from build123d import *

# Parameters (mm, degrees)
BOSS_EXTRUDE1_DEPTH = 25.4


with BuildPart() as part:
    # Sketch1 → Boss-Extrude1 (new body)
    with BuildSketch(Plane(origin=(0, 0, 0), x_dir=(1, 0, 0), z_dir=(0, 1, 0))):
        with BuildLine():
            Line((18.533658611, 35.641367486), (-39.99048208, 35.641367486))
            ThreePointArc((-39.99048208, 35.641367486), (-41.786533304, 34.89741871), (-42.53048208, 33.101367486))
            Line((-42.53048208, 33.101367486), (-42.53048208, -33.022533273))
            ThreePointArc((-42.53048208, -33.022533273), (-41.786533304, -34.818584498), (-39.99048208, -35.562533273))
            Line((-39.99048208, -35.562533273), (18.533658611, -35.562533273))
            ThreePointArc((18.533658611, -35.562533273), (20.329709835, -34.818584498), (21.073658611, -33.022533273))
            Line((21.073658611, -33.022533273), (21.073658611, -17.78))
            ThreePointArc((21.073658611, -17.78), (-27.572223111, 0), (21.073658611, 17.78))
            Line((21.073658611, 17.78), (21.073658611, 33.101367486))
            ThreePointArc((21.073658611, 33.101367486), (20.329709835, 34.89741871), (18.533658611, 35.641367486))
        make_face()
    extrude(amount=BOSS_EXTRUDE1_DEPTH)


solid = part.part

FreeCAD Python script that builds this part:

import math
import FreeCAD as App
import Part
import Sketcher
Q = App.Units.Quantity

doc = App.newDocument("Part")
body = doc.addObject("PartDesign::Body", "Body")

sketch1 = body.newObject("Sketcher::SketchObject", "Sketch")
sketch1.AttachmentSupport = (doc.getObject("XZ_Plane"), [""])
sketch1.MapMode = "FlatFace"
sketch1.addGeometry(Part.LineSegment(App.Vector(18.5, -35.6, 0), App.Vector(-40, -35.6, 0)), False)
sketch1.addGeometry(Part.ArcOfCircle(Part.Circle(App.Vector(-40, -33.1, 0), App.Vector(0, 0, 1), 2.5), math.radians(-180), math.radians(-90)), False)
sketch1.addGeometry(Part.LineSegment(App.Vector(-42.5, -33.1, 0), App.Vector(-42.5, 33, 0)), False)
sketch1.addGeometry(Part.ArcOfCircle(Part.Circle(App.Vector(-40, 33, 0), App.Vector(0, 0, 1), 2.5), math.radians(90), math.radians(180)), False)
sketch1.addGeometry(Part.LineSegment(App.Vector(-40, 35.6, 0), App.Vector(18.5, 35.6, 0)), False)
sketch1.addGeometry(Part.ArcOfCircle(Part.Circle(App.Vector(18.5, 33, 0), App.Vector(0, 0, 1), 2.5), math.radians(0), math.radians(90)), False)
sketch1.addGeometry(Part.LineSegment(App.Vector(21.1, 33, 0), App.Vector(21.1, 17.8, 0)), False)
sketch1.addGeometry(Part.ArcOfCircle(Part.Circle(App.Vector(0, 0, 0), App.Vector(0, 0, 1), 27.6), math.radians(40), math.radians(320)), False)
sketch1.addGeometry(Part.LineSegment(App.Vector(21.1, -17.8, 0), App.Vector(21.1, -33.1, 0)), False)
sketch1.addGeometry(Part.ArcOfCircle(Part.Circle(App.Vector(18.5, -33.1, 0), App.Vector(0, 0, 1), 2.5), math.radians(-90), math.radians(0)), False)
sketch1.addConstraint(Sketcher.Constraint("Tangent", 0, 2, 1, 2))
sketch1.addConstraint(Sketcher.Constraint("Tangent", 1, 1, 2, 1))
sketch1.addConstraint(Sketcher.Constraint("Tangent", 2, 2, 3, 2))
sketch1.addConstraint(Sketcher.Constraint("Tangent", 3, 1, 4, 1))
sketch1.addConstraint(Sketcher.Constraint("Tangent", 4, 2, 5, 2))
sketch1.addConstraint(Sketcher.Constraint("Tangent", 5, 1, 6, 1))
sketch1.addConstraint(Sketcher.Constraint("Coincident", 6, 2, 7, 1))
sketch1.addConstraint(Sketcher.Constraint("Coincident", 7, 2, 8, 1))
sketch1.addConstraint(Sketcher.Constraint("Tangent", 8, 2, 9, 2))
sketch1.addConstraint(Sketcher.Constraint("Tangent", 9, 1, 0, 1))
sketch1.addConstraint(Sketcher.Constraint("Horizontal", 0))
sketch1.addConstraint(Sketcher.Constraint("Vertical", 2))
sketch1.addConstraint(Sketcher.Constraint("Horizontal", 4))
sketch1.addConstraint(Sketcher.Constraint("Vertical", 6))
sketch1.addConstraint(Sketcher.Constraint("Vertical", 8))
sketch1.addConstraint(Sketcher.Constraint("Coincident", 7, 3, -1, 1))
sketch1.addConstraint(Sketcher.Constraint("Equal", 1, 3))
sketch1.addConstraint(Sketcher.Constraint("Equal", 3, 5))
sketch1.addConstraint(Sketcher.Constraint("Equal", 5, 9))
sketch1.addConstraint(Sketcher.Constraint("Vertical", 5, 3, 9, 3))
sketch1.addConstraint(Sketcher.Constraint("Radius", 1, Q("0.1 in")))
sketch1.addConstraint(Sketcher.Constraint("DistanceY", -1, 1, 6, 2, Q("0.7 in")))
sketch1.addConstraint(Sketcher.Constraint("DistanceX", 0, 2, 0, 1, Q("2.3041 in")))
sketch1.addConstraint(Sketcher.Constraint("DistanceY", 2, 1, 2, 2, Q("66.123901 mm")))
sketch1.addConstraint(Sketcher.Constraint("Radius", 7, Q("27.572223 mm")))
sketch1.addConstraint(Sketcher.Constraint("DistanceY", 6, 2, 6, 1, Q("15.242533 mm")))
pad1 = body.newObject("PartDesign::Pad", "Pad")
pad1.Profile = sketch1
pad1.Length = Q("1 in")
pad1.Reversed = True

doc.recompute()
